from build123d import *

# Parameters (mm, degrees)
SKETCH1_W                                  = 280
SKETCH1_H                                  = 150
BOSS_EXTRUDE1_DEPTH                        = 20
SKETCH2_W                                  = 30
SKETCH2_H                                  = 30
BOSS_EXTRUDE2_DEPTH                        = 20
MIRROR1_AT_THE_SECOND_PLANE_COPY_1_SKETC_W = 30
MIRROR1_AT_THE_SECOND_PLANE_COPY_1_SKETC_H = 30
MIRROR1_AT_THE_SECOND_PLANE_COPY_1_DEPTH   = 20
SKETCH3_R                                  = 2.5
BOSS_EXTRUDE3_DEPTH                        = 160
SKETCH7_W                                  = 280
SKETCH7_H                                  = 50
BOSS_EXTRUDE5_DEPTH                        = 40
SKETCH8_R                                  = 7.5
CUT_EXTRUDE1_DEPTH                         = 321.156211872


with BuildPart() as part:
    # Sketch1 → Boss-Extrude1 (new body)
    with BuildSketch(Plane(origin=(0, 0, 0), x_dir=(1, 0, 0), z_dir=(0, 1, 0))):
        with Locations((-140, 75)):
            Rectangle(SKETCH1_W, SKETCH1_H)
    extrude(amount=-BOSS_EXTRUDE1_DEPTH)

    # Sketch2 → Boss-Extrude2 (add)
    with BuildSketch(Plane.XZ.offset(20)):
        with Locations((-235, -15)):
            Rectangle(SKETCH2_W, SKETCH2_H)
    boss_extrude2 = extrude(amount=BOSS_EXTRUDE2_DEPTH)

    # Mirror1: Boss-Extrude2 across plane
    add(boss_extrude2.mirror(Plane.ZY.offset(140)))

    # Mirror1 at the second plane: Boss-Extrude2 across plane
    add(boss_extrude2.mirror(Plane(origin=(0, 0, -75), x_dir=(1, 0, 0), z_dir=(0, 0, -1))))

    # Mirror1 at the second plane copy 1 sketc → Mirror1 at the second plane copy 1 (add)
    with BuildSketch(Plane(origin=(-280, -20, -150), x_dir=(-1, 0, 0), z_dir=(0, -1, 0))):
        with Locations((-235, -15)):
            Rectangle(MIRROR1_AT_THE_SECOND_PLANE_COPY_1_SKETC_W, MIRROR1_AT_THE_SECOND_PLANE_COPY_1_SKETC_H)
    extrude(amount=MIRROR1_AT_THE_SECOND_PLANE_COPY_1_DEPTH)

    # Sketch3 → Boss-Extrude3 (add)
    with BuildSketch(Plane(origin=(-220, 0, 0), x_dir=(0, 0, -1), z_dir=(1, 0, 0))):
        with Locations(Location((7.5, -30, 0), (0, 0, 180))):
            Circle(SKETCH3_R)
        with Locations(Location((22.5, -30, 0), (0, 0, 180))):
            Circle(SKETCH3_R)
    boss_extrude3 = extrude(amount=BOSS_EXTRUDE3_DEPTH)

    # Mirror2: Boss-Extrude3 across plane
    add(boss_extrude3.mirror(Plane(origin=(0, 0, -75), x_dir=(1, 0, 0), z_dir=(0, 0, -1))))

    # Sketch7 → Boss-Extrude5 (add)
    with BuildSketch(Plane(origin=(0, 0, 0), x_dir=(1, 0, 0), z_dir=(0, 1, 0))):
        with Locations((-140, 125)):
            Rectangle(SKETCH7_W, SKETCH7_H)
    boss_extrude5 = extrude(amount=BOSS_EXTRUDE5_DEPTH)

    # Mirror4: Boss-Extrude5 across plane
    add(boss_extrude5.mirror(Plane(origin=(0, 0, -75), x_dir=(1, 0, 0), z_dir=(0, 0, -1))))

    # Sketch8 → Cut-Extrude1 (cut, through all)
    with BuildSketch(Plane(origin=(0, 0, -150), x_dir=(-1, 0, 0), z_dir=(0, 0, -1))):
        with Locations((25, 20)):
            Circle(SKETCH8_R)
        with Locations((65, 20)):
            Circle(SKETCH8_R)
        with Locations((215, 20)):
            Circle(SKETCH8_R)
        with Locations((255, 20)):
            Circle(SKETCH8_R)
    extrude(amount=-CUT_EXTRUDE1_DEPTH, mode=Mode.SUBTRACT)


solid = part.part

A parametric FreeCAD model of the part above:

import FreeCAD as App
import Part
import Sketcher
Q = App.Units.Quantity


def add_polygon(sketch, points):
    """Adds a closed chain of lines whose ends are joined by coincident constraints."""
    first, n = sketch.GeometryCount, len(points)
    for a, b in zip(points, points[1:] + points[:1]):
        sketch.addGeometry(Part.LineSegment(App.Vector(*a, 0), App.Vector(*b, 0)), False)
    for i in range(n):
        sketch.addConstraint(Sketcher.Constraint("Coincident", first + i, 2, first + (i + 1) % n, 1))

doc = App.newDocument("Part")
params = doc.addObject("Spreadsheet::Sheet", "Params")
for row, (alias, value) in enumerate([
    ("sketch1_width", "280 mm"),
    ("sketch1_height", "150 mm"),
    ("pad1_length", "20 mm"),
    ("sketch2_width", "30 mm"),
    ("pad2_length", "20 mm"),
    ("sketch3_width", "30 mm"),
    ("pad3_length", "20 mm"),
    ("sketch4_diameter", "5 mm"),
    ("pad4_length", "160 mm"),
    ("sketch5_width", "280 mm"),
    ("sketch5_height", "50 mm"),
    ("pad5_length", "40 mm"),
    ("sketch6_diameter", "15 mm"),
], start=1):
    params.set(f"A{row}", alias)
    params.set(f"B{row}", "=" + value)
    params.setAlias(f"B{row}", alias)

body = doc.addObject("PartDesign::Body", "Body")

# Sketch on XZ plane
sketch1 = body.newObject("Sketcher::SketchObject", "Sketch")
sketch1.AttachmentSupport = (doc.getObject("XZ_Plane"), [""])
sketch1.MapMode = "FlatFace"
add_polygon(sketch1, [(-280, -150), (-280, 0), (0, 0), (0, -150)])  # lines 0-3
sketch1.addConstraint([
    Sketcher.Constraint("Vertical", 0),
    Sketcher.Constraint("Horizontal", 1),
    Sketcher.Constraint("Vertical", 2),
    Sketcher.Constraint("Horizontal", 3),
    Sketcher.Constraint("Coincident", 1, 2, -1, 1),
    Sketcher.Constraint("DistanceX", 1, 1, 1, 2, Q("280 mm")),
    Sketcher.Constraint("DistanceY", 0, 1, 0, 2, Q("150 mm")),
])
sketch1.setExpression("Constraints[9]", "Params.sketch1_width")
sketch1.setExpression("Constraints[10]", "Params.sketch1_height")
pad1 = body.newObject("PartDesign::Pad", "Pad")
pad1.Profile = sketch1
pad1.setExpression("Length", "Params.pad1_length")

# Sketch on XZ plane
sketch2 = body.newObject("Sketcher::SketchObject", "Sketch001")
sketch2.AttachmentSupport = (doc.getObject("XZ_Plane"), [""])
sketch2.MapMode = "FlatFace"
sketch2.AttachmentOffset = App.Placement(App.Vector(0, 0, 20), App.Rotation())
add_polygon(sketch2, [(-250, 0), (-250, -30), (-220, -30), (-220, 0)])  # lines 0-3
sketch2.addConstraint([
    Sketcher.Constraint("Vertical", 0),
    Sketcher.Constraint("Horizontal", 1),
    Sketcher.Constraint("Vertical", 2),
    Sketcher.Constraint("Horizontal", 3),
    Sketcher.Constraint("PointOnObject", 2, 2, -1),
    Sketcher.Constraint("Equal", 3, 0),
    Sketcher.Constraint("DistanceX", 1, 1, 1, 2, Q("30 mm")),
    Sketcher.Constraint("DistanceX", 0, 2, -1, 1, Q("250 mm")),
])
sketch2.setExpression("Constraints[10]", "Params.sketch2_width")
pad2 = body.newObject("PartDesign::Pad", "Pad001")
pad2.Profile = sketch2
pad2.setExpression("Length", "Params.pad2_length")
doc.recompute()

datumplane = body.newObject("PartDesign::Plane", "DatumPlane")
datumplane.AttachmentSupport = (doc.getObject("YZ_Plane"), [""])
datumplane.MapMode = "FlatFace"
datumplane.AttachmentOffset = App.Placement(App.Vector(0, 0, -140), App.Rotation())
mirrored = body.newObject("PartDesign::Mirrored", "Mirrored")
mirrored.Originals = [pad2]
mirrored.MirrorPlane = (datumplane, [""])
body.Tip = mirrored
doc.recompute()

datumplane2 = body.newObject("PartDesign::Plane", "DatumPlane001")
datumplane2.AttachmentSupport = (doc.getObject("XY_Plane"), [""])
datumplane2.MapMode = "FlatFace"
datumplane2.AttachmentOffset = App.Placement(App.Vector(0, 0, -75), App.Rotation())
mirrored2 = body.newObject("PartDesign::Mirrored", "Mirrored001")
mirrored2.Originals = [pad2]
mirrored2.MirrorPlane = (datumplane2, [""])
body.Tip = mirrored2

# Sketch on XZ plane
sketch3 = body.newObject("Sketcher::SketchObject", "Sketch002")
sketch3.AttachmentSupport = (doc.getObject("XZ_Plane"), [""])
sketch3.MapMode = "FlatFace"
sketch3.AttachmentOffset = App.Placement(App.Vector(0, 0, 20), App.Rotation())
add_polygon(sketch3, [(-30, -150), (-30, -120), (-60, -120), (-60, -150)])  # lines 0-3
sketch3.addConstraint([
    Sketcher.Constraint("Vertical", 0),
    Sketcher.Constraint("Horizontal", 1),
    Sketcher.Constraint("Vertical", 2),
    Sketcher.Constraint("Horizontal", 3),
    Sketcher.Constraint("Equal", 3, 0),
    Sketcher.Constraint("DistanceX", 1, 2, 1, 1, Q("30 mm")),
    Sketcher.Constraint("DistanceX", 0, 2, -1, 1, Q("30 mm")),
    Sketcher.Constraint("DistanceY", 0, 2, -1, 1, Q("120 mm")),
])
sketch3.setExpression("Constraints[9]", "Params.sketch3_width")
pad3 = body.newObject("PartDesign::Pad", "Pad002")
pad3.Profile = sketch3
pad3.setExpression("Length", "Params.pad3_length")

# Sketch on YZ plane
sketch4 = body.newObject("Sketcher::SketchObject", "Sketch003")
sketch4.AttachmentSupport = (doc.getObject("YZ_Plane"), [""])
sketch4.MapMode = "FlatFace"
sketch4.AttachmentOffset = App.Placement(App.Vector(0, 0, -220), App.Rotation())
sketch4.addGeometry([
    Part.Circle(App.Vector(-30, -7.5, 0), App.Vector(0, 0, 1), 2.5),
    Part.Circle(App.Vector(-30, -22.5, 0), App.Vector(0, 0, 1), 2.5),
], False)
sketch4.addConstraint([
    Sketcher.Constraint("Equal", 0, 1),
    Sketcher.Constraint("Vertical", 0, 3, 1, 3),
    Sketcher.Constraint("Diameter", 0, Q("5 mm")),
    Sketcher.Constraint("DistanceX", 0, 3, -1, 1, Q("30 mm")),
    Sketcher.Constraint("DistanceY", 1, 3, 0, 3, Q("15 mm")),
    Sketcher.Constraint("DistanceY", 0, 3, -1, 1, Q("7.5 mm")),
])
sketch4.setExpression("Constraints[2]", "Params.sketch4_diameter")
pad4 = body.newObject("PartDesign::Pad", "Pad003")
pad4.Profile = sketch4
pad4.setExpression("Length", "Params.pad4_length")
doc.recompute()

datumplane3 = body.newObject("PartDesign::Plane", "DatumPlane002")
datumplane3.AttachmentSupport = (doc.getObject("XY_Plane"), [""])
datumplane3.MapMode = "FlatFace"
datumplane3.AttachmentOffset = App.Placement(App.Vector(0, 0, -75), App.Rotation())
mirrored3 = body.newObject("PartDesign::Mirrored", "Mirrored002")
mirrored3.Originals = [pad4]
mirrored3.MirrorPlane = (datumplane3, [""])
body.Tip = mirrored3

# Sketch on XZ plane
sketch5 = body.newObject("Sketcher::SketchObject", "Sketch004")
sketch5.AttachmentSupport = (doc.getObject("XZ_Plane"), [""])
sketch5.MapMode = "FlatFace"
add_polygon(sketch5, [(-280, -150), (-280, -100), (0, -100), (0, -150)])  # lines 0-3
sketch5.addConstraint([
    Sketcher.Constraint("Vertical", 0),
    Sketcher.Constraint("Horizontal", 1),
    Sketcher.Constraint("Vertical", 2),
    Sketcher.Constraint("Horizontal", 3),
    Sketcher.Constraint("PointOnObject", 1, 2, -2),
    Sketcher.Constraint("DistanceX", 1, 1, 1, 2, Q("280 mm")),
    Sketcher.Constraint("DistanceY", 0, 1, 0, 2, Q("50 mm")),
    Sketcher.Constraint("DistanceY", 0, 2, -1, 1, Q("100 mm")),
])
sketch5.setExpression("Constraints[9]", "Params.sketch5_width")
sketch5.setExpression("Constraints[10]", "Params.sketch5_height")
pad5 = body.newObject("PartDesign::Pad", "Pad004")
pad5.Profile = sketch5
pad5.setExpression("Length", "Params.pad5_length")
pad5.Reversed = True
doc.recompute()

datumplane4 = body.newObject("PartDesign::Plane", "DatumPlane003")
datumplane4.AttachmentSupport = (doc.getObject("XY_Plane"), [""])
datumplane4.MapMode = "FlatFace"
datumplane4.AttachmentOffset = App.Placement(App.Vector(0, 0, -75), App.Rotation())
mirrored4 = body.newObject("PartDesign::Mirrored", "Mirrored003")
mirrored4.Originals = [pad5]
mirrored4.MirrorPlane = (datumplane4, [""])
body.Tip = mirrored4

# Sketch on XY plane
sketch6 = body.newObject("Sketcher::SketchObject", "Sketch005")
sketch6.AttachmentSupport = (doc.getObject("XY_Plane"), [""])
sketch6.MapMode = "FlatFace"
sketch6.AttachmentOffset = App.Placement(App.Vector(0, 0, -150), App.Rotation())
sketch6.addGeometry([
    Part.Circle(App.Vector(-25, 20, 0), App.Vector(0, 0, 1), 8),
    Part.Circle(App.Vector(-65, 20, 0), App.Vector(0, 0, 1), 8),
    Part.Circle(App.Vector(-215, 20, 0), App.Vector(0, 0, 1), 8),
    Part.Circle(App.Vector(-255, 20, 0), App.Vector(0, 0, 1), 8),
], False)
sketch6.addConstraint([
    Sketcher.Constraint("Equal", 0, 1),
    Sketcher.Constraint("Equal", 1, 2),
    Sketcher.Constraint("Equal", 2, 3),
    Sketcher.Constraint("Horizontal", 0, 3, 1, 3),
    Sketcher.Constraint("Horizontal", 1, 3, 2, 3),
    Sketcher.Constraint("Horizontal", 2, 3, 3, 3),
    Sketcher.Constraint("Diameter", 0, Q("15 mm")),
    Sketcher.Constraint("DistanceX", 0, 3, -1, 1, Q("25 mm")),
    Sketcher.Constraint("DistanceY", -1, 1, 0, 3, Q("20 mm")),
    Sketcher.Constraint("DistanceX", 1, 3, -1, 1, Q("65 mm")),
    Sketcher.Constraint("DistanceX", 2, 3, -1, 1, Q("215 mm")),
    Sketcher.Constraint("DistanceX", 3, 3, -1, 1, Q("255 mm")),
])
sketch6.setExpression("Constraints[6]", "Params.sketch6_diameter")
pocket1 = body.newObject("PartDesign::Pocket", "Pocket")
pocket1.Profile = sketch6
pocket1.Type = "ThroughAll"
pocket1.Reversed = True

doc.recompute()
